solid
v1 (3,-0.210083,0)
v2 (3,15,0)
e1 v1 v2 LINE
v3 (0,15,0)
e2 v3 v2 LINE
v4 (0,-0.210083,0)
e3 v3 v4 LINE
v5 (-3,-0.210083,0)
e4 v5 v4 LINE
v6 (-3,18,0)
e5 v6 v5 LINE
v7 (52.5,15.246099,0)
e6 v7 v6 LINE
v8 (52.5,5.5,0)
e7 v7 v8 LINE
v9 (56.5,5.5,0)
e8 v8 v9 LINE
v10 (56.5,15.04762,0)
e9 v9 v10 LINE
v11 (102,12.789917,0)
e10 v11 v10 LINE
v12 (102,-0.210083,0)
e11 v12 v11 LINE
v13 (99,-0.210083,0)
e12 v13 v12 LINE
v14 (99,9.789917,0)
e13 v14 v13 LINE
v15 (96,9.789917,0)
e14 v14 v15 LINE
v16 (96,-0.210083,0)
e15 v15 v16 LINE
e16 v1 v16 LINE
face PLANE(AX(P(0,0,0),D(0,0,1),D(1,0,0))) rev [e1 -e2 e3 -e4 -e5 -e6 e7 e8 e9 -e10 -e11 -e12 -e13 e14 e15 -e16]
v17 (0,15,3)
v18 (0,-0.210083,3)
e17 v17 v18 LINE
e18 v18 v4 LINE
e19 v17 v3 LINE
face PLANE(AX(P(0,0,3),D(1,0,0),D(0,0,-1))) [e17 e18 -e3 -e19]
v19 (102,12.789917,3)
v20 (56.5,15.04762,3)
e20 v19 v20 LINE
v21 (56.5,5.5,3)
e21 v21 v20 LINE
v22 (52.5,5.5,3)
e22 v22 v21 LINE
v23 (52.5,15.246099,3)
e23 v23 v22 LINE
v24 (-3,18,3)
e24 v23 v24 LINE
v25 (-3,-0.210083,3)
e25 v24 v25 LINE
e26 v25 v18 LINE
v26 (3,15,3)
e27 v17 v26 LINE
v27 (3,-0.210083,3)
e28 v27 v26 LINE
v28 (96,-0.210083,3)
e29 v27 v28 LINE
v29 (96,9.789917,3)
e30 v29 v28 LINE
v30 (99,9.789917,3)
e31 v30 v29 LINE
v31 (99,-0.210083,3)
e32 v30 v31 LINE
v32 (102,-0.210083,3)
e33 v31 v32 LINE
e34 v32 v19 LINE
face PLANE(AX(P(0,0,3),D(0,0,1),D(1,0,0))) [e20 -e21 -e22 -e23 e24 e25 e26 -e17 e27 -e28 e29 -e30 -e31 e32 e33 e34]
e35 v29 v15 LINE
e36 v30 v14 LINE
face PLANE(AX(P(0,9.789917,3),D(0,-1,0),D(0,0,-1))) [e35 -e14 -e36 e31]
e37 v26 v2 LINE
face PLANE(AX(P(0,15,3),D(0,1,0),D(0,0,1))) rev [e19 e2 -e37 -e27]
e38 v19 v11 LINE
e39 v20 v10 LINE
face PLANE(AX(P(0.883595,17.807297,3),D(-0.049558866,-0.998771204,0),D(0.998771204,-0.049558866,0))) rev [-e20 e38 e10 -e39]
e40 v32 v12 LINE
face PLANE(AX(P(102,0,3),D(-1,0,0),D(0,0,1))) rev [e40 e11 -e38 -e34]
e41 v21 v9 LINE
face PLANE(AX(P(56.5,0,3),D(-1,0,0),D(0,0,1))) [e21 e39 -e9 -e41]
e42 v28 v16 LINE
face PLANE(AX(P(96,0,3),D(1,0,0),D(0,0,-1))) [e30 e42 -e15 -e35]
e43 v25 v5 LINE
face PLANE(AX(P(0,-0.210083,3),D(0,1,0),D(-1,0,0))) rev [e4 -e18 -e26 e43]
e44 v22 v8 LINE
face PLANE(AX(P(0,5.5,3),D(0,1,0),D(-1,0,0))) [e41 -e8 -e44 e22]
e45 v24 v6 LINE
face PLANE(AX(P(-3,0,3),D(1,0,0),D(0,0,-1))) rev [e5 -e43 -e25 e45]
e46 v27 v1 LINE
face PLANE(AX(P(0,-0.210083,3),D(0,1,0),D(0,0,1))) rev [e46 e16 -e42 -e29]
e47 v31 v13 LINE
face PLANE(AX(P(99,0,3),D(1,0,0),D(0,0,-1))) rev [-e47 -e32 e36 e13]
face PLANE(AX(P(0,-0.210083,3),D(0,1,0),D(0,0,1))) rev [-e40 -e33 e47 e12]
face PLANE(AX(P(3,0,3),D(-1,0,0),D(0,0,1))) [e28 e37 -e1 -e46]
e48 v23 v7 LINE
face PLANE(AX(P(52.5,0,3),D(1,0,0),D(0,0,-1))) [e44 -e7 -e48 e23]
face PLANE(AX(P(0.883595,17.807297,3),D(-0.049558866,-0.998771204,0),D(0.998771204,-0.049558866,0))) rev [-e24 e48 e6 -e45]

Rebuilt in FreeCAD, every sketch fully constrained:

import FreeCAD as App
import Part
import Sketcher
from FreeCAD import Vector
Q = App.Units.Quantity

doc = App.newDocument("Part")
body = doc.addObject("PartDesign::Body", "Body")

# Sketch on XY plane
sketch1 = body.newObject("Sketcher::SketchObject", "Sketch")
sketch1.AttachmentSupport = (doc.getObject("XY_Plane"), [""])
sketch1.MapMode = "FlatFace"
sketch1.addGeometry([
    Part.LineSegment(Vector(-3, 18, 0), Vector(-3, -0.2, 0)),  # 0
    Part.LineSegment(Vector(-3, -0.2, 0), Vector(0, -0.2, 0)),  # 1
    Part.LineSegment(Vector(0, -0.2, 0), Vector(0, 15, 0)),  # 2
    Part.LineSegment(Vector(0, 15, 0), Vector(3, 15, 0)),  # 3
    Part.LineSegment(Vector(3, 15, 0), Vector(3, -0.2, 0)),  # 4
    Part.LineSegment(Vector(3, -0.2, 0), Vector(96, -0.2, 0)),  # 5
    Part.LineSegment(Vector(96, -0.2, 0), Vector(96, 9.8, 0)),  # 6
    Part.LineSegment(Vector(96, 9.8, 0), Vector(99, 9.8, 0)),  # 7
    Part.LineSegment(Vector(99, 9.8, 0), Vector(99, -0.2, 0)),  # 8
    Part.LineSegment(Vector(99, -0.2, 0), Vector(102, -0.2, 0)),  # 9
    Part.LineSegment(Vector(102, -0.2, 0), Vector(102, 12.8, 0)),  # 10
    Part.LineSegment(Vector(102, 12.8, 0), Vector(56.5, 15, 0)),  # 11
    Part.LineSegment(Vector(56.5, 15, 0), Vector(56.5, 5.5, 0)),  # 12
    Part.LineSegment(Vector(56.5, 5.5, 0), Vector(52.5, 5.5, 0)),  # 13
    Part.LineSegment(Vector(52.5, 5.5, 0), Vector(52.5, 15.2, 0)),  # 14
    Part.LineSegment(Vector(52.5, 15.2, 0), Vector(-3, 18, 0)),  # 15
], False)
sketch1.addConstraint([
    Sketcher.Constraint("Coincident", 0, 2, 1, 1),
    Sketcher.Constraint("Coincident", 1, 2, 2, 1),
    Sketcher.Constraint("Coincident", 2, 2, 3, 1),
    Sketcher.Constraint("Coincident", 3, 2, 4, 1),
    Sketcher.Constraint("Coincident", 4, 2, 5, 1),
    Sketcher.Constraint("Coincident", 5, 2, 6, 1),
    Sketcher.Constraint("Coincident", 6, 2, 7, 1),
    Sketcher.Constraint("Coincident", 7, 2, 8, 1),
    Sketcher.Constraint("Coincident", 8, 2, 9, 1),
    Sketcher.Constraint("Coincident", 9, 2, 10, 1),
    Sketcher.Constraint("Coincident", 10, 2, 11, 1),
    Sketcher.Constraint("Coincident", 11, 2, 12, 1),
    Sketcher.Constraint("Coincident", 12, 2, 13, 1),
    Sketcher.Constraint("Coincident", 13, 2, 14, 1),
    Sketcher.Constraint("Coincident", 14, 2, 15, 1),
    Sketcher.Constraint("Coincident", 15, 2, 0, 1),
    Sketcher.Constraint("Vertical", 0),
    Sketcher.Constraint("Horizontal", 1),
    Sketcher.Constraint("Vertical", 2),
    Sketcher.Constraint("Horizontal", 3),
    Sketcher.Constraint("Vertical", 4),
    Sketcher.Constraint("Horizontal", 5),
    Sketcher.Constraint("Vertical", 6),
    Sketcher.Constraint("Horizontal", 7),
    Sketcher.Constraint("Vertical", 8),
    Sketcher.Constraint("Horizontal", 9),
    Sketcher.Constraint("Vertical", 10),
    Sketcher.Constraint("Vertical", 12),
    Sketcher.Constraint("Horizontal", 13),
    Sketcher.Constraint("Vertical", 14),
    Sketcher.Constraint("Symmetric", 0, 2, 4, 2, -2),
    Sketcher.Constraint("PointOnObject", 1, 2, -2),
    Sketcher.Constraint("Parallel", 11, 15),
    Sketcher.Constraint("Horizontal", 5, 2, 8, 2),
    Sketcher.Constraint("Equal", 3, 7),
    Sketcher.Constraint("Equal", 7, 9),
    Sketcher.Constraint("DistanceX", 1, 1, 1, 2, Q("3 mm")),
    Sketcher.Constraint("DistanceX", 5, 1, 5, 2, Q("93 mm")),
    Sketcher.Constraint("DistanceX", 13, 2, 13, 1, Q("4 mm")),
    Sketcher.Constraint("DistanceY", 6, 1, 6, 2, Q("10 mm")),
    Sketcher.Constraint("DistanceY", 10, 1, 10, 2, Q("13 mm")),
    Sketcher.Constraint("DistanceY", -1, 1, 2, 2, Q("15 mm")),
    Sketcher.Constraint("DistanceY", -1, 1, 15, 2, Q("18 mm")),
    Sketcher.Constraint("DistanceX", -1, 1, 11, 2, Q("56.5 mm")),
    Sketcher.Constraint("DistanceY", -1, 1, 12, 2, Q("5.5 mm")),
    Sketcher.Constraint("DistanceY", 14, 1, 14, 2, Q("9.746099 mm")),
    Sketcher.Constraint("DistanceY", 12, 2, 12, 1, Q("9.54762 mm")),
])
pad1 = body.newObject("PartDesign::Pad", "Pad")
pad1.Profile = sketch1
pad1.Length = 3

doc.recompute()
